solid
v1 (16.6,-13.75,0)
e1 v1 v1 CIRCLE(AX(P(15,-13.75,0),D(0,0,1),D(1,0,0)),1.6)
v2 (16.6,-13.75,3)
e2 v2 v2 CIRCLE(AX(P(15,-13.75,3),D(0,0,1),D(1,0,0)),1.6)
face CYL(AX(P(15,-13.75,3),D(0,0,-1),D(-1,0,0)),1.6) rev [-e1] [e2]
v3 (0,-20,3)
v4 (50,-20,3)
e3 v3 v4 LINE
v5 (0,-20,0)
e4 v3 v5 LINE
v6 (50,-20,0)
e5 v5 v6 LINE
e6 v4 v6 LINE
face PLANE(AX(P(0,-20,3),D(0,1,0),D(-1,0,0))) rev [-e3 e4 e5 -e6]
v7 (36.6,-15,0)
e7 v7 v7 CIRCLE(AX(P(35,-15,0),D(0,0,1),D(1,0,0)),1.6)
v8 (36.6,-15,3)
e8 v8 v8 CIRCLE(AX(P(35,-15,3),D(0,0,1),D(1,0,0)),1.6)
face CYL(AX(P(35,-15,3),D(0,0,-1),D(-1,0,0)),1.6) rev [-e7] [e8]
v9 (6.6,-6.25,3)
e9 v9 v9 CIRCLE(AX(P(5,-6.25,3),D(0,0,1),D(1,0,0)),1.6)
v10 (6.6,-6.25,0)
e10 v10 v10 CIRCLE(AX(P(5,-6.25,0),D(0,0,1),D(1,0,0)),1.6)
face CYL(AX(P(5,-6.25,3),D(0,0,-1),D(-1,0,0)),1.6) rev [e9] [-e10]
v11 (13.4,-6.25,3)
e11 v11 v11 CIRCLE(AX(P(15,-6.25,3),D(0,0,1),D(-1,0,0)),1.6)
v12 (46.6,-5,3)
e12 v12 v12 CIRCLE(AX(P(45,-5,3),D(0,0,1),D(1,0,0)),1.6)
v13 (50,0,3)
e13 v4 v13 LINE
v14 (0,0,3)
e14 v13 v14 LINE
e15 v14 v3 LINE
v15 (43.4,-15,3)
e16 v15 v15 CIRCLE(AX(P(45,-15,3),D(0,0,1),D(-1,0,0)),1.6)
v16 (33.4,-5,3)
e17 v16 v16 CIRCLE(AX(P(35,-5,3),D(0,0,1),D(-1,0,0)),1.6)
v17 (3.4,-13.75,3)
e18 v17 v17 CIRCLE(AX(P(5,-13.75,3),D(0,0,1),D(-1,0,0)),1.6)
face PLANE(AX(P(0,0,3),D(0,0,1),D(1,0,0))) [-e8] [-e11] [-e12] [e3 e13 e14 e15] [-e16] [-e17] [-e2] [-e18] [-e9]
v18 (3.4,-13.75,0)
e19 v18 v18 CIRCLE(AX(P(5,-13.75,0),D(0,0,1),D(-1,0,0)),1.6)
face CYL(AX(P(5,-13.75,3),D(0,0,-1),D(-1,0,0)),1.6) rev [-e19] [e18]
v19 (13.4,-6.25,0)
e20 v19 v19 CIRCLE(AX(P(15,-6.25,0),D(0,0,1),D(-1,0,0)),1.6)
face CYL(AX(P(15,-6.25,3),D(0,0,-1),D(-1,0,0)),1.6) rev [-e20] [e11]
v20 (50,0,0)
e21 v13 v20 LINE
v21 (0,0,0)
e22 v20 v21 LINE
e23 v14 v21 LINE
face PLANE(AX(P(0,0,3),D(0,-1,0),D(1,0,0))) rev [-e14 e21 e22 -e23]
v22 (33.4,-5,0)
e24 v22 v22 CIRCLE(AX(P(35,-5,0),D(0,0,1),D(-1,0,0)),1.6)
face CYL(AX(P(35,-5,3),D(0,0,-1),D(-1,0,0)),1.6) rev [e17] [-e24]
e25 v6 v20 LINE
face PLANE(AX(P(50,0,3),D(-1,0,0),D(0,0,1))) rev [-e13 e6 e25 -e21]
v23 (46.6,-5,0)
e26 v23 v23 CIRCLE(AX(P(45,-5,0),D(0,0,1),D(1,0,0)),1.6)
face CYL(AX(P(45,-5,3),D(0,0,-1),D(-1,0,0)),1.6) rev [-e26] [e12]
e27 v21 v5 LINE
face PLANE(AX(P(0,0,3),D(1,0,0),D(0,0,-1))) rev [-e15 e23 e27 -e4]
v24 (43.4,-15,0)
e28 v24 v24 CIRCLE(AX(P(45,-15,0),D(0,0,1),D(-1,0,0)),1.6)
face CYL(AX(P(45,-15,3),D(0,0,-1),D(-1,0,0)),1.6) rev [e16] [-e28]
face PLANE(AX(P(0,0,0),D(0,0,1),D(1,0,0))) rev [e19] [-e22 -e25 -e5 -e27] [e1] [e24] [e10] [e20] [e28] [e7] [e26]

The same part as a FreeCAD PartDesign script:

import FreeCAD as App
import Part
import Sketcher
Q = App.Units.Quantity

doc = App.newDocument("Part")
params = doc.addObject("Spreadsheet::Sheet", "Params")
for row, (alias, value) in enumerate([
    ("sketch1_diameter", "3.2 mm"),
    ("sketch1_width", "50 mm"),
    ("sketch1_height", "20 mm"),
    ("pad1_length", "3 mm"),
], start=1):
    params.set(f"A{row}", alias)
    params.set(f"B{row}", "=" + value)
    params.setAlias(f"B{row}", alias)

body = doc.addObject("PartDesign::Body", "Body")

sketch1 = body.newObject("Sketcher::SketchObject", "Sketch")
sketch1.AttachmentSupport = (doc.getObject("XY_Plane"), [""])
sketch1.MapMode = "FlatFace"
sketch1.addGeometry([
    Part.LineSegment(App.Vector(0, 0, 0), App.Vector(0, -20, 0)),
    Part.LineSegment(App.Vector(0, -20, 0), App.Vector(50, -20, 0)),
    Part.LineSegment(App.Vector(50, -20, 0), App.Vector(50, 0, 0)),
    Part.LineSegment(App.Vector(50, 0, 0), App.Vector(0, 0, 0)),
    Part.Circle(App.Vector(5, -13.8, 0), App.Vector(0, 0, 1), 1.6),
    Part.Circle(App.Vector(15, -13.8, 0), App.Vector(0, 0, 1), 1.6),
    Part.Circle(App.Vector(35, -15, 0), App.Vector(0, 0, 1), 1.6),
    Part.Circle(App.Vector(45, -15, 0), App.Vector(0, 0, 1), 1.6),
    Part.Circle(App.Vector(5, -6.2, 0), App.Vector(0, 0, 1), 1.6),
    Part.Circle(App.Vector(15, -6.2, 0), App.Vector(0, 0, 1), 1.6),
    Part.Circle(App.Vector(35, -5, 0), App.Vector(0, 0, 1), 1.6),
    Part.Circle(App.Vector(45, -5, 0), App.Vector(0, 0, 1), 1.6),
], False)
sketch1.addConstraint([
    Sketcher.Constraint("Coincident", 0, 2, 1, 1),
    Sketcher.Constraint("Coincident", 1, 2, 2, 1),
    Sketcher.Constraint("Coincident", 2, 2, 3, 1),
    Sketcher.Constraint("Coincident", 3, 2, 0, 1),
    Sketcher.Constraint("Vertical", 0),
    Sketcher.Constraint("Horizontal", 1),
    Sketcher.Constraint("Vertical", 2),
    Sketcher.Constraint("Horizontal", 3),
    Sketcher.Constraint("Coincident", 3, 2, -1, 1),
    Sketcher.Constraint("Equal", 4, 5),
    Sketcher.Constraint("Equal", 5, 6),
    Sketcher.Constraint("Equal", 6, 7),
    Sketcher.Constraint("Equal", 7, 8),
    Sketcher.Constraint("Equal", 8, 9),
    Sketcher.Constraint("Equal", 9, 10),
    Sketcher.Constraint("Equal", 10, 11),
    Sketcher.Constraint("Horizontal", 4, 3, 5, 3),
    Sketcher.Constraint("Horizontal", 6, 3, 7, 3),
    Sketcher.Constraint("Horizontal", 8, 3, 9, 3),
    Sketcher.Constraint("Horizontal", 10, 3, 11, 3),
    Sketcher.Constraint("Vertical", 4, 3, 8, 3),
    Sketcher.Constraint("Vertical", 5, 3, 9, 3),
    Sketcher.Constraint("Vertical", 6, 3, 10, 3),
    Sketcher.Constraint("Vertical", 7, 3, 11, 3),
    Sketcher.Constraint("Diameter", 4, Q("3.2 mm")),
    Sketcher.Constraint("DistanceX", 1, 1, 1, 2, Q("50 mm")),
    Sketcher.Constraint("DistanceY", 0, 2, 0, 1, Q("20 mm")),
    Sketcher.Constraint("DistanceX", -1, 1, 4, 3, Q("5 mm")),
    Sketcher.Constraint("DistanceX", -1, 1, 5, 3, Q("15 mm")),
    Sketcher.Constraint("DistanceX", -1, 1, 6, 3, Q("35 mm")),
    Sketcher.Constraint("DistanceY", 6, 3, -1, 1, Q("15 mm")),
    Sketcher.Constraint("DistanceX", -1, 1, 7, 3, Q("45 mm")),
    Sketcher.Constraint("DistanceY", 10, 3, -1, 1, Q("5 mm")),
    Sketcher.Constraint("DistanceY", 4, 3, 8, 3, Q("7.5 mm")),
    Sketcher.Constraint("DistanceY", 4, 3, -1, 1, Q("13.75 mm")),
])
sketch1.setExpression("Constraints[24]", "Params.sketch1_diameter")
sketch1.setExpression("Constraints[25]", "Params.sketch1_width")
sketch1.setExpression("Constraints[26]", "Params.sketch1_height")
pad1 = body.newObject("PartDesign::Pad", "Pad")
pad1.Profile = sketch1
pad1.setExpression("Length", "Params.pad1_length")

doc.recompute()
